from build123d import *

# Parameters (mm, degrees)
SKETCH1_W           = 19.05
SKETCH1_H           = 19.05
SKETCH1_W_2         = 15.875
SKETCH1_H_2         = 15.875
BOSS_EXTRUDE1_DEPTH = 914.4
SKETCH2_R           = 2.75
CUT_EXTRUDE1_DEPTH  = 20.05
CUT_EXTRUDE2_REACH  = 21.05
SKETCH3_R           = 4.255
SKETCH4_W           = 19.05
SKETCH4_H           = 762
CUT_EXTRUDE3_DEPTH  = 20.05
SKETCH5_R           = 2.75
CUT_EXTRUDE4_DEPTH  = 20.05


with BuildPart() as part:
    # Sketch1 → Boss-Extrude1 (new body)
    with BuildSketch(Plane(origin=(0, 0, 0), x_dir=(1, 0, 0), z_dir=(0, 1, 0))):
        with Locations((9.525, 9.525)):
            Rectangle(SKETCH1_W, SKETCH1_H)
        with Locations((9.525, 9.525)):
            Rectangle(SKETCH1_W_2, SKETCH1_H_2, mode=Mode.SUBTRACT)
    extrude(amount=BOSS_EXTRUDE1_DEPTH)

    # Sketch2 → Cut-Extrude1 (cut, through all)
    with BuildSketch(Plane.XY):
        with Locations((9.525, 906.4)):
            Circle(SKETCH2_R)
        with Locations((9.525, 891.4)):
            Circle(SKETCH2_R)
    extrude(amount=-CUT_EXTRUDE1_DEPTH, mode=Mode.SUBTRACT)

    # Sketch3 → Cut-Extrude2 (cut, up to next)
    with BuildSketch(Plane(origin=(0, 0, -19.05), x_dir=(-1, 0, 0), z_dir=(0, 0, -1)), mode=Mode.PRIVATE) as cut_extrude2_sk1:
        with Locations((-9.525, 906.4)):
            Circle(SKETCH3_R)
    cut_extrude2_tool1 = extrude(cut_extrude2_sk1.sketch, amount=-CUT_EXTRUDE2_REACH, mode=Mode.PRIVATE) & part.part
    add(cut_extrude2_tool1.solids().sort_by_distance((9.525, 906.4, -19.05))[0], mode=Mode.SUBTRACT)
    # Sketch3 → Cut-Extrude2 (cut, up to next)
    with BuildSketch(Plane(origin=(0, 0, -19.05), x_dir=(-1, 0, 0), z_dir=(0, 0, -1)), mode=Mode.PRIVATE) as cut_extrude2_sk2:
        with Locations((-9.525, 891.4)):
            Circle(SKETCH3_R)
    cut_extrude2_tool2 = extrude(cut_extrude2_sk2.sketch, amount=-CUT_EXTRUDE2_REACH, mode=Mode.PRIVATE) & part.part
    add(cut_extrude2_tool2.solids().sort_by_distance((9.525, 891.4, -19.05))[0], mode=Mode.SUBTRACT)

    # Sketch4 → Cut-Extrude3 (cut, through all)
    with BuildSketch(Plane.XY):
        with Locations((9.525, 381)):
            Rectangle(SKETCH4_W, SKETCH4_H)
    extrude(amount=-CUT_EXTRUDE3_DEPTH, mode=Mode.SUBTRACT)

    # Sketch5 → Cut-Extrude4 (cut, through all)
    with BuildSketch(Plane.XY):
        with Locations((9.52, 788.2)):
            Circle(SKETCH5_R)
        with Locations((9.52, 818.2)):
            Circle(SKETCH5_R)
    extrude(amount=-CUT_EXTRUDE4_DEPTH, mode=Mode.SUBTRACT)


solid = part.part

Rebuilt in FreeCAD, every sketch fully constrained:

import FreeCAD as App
import Part
import Sketcher

V = App.Vector
Q = App.Units.Quantity

doc = App.newDocument("Part")
body = doc.addObject("PartDesign::Body", "Body")

# Sketch on XZ plane
sketch1 = doc.addObject("Sketcher::SketchObject", "Sketch")
body.addObject(sketch1)
sketch1.AttachmentSupport = (doc.XZ_Plane, [""])
sketch1.MapMode = "FlatFace"
sketch1.addGeometry([
    Part.LineSegment(V(0, -19.05, 0), V(0, 0, 0)),  # 0
    Part.LineSegment(V(0, 0, 0), V(19.05, 0, 0)),  # 1
    Part.LineSegment(V(19.05, 0, 0), V(19.05, -19.05, 0)),  # 2
    Part.LineSegment(V(19.05, -19.05, 0), V(0, -19.05, 0)),  # 3
    Part.LineSegment(V(17.4625, -1.5875, 0), V(1.5875, -1.5875, 0)),  # 4
    Part.LineSegment(V(1.5875, -1.5875, 0), V(1.5875, -17.4625, 0)),  # 5
    Part.LineSegment(V(1.5875, -17.4625, 0), V(17.4625, -17.4625, 0)),  # 6
    Part.LineSegment(V(17.4625, -17.4625, 0), V(17.4625, -1.5875, 0)),  # 7
], False)
sketch1.addConstraint([
    Sketcher.Constraint("Coincident", 0, 2, 1, 1),
    Sketcher.Constraint("Coincident", 1, 2, 2, 1),
    Sketcher.Constraint("Coincident", 2, 2, 3, 1),
    Sketcher.Constraint("Coincident", 3, 2, 0, 1),
    Sketcher.Constraint("Coincident", 4, 2, 5, 1),
    Sketcher.Constraint("Coincident", 5, 2, 6, 1),
    Sketcher.Constraint("Coincident", 6, 2, 7, 1),
    Sketcher.Constraint("Coincident", 7, 2, 4, 1),
    Sketcher.Constraint("Vertical", 0),
    Sketcher.Constraint("Horizontal", 1),
    Sketcher.Constraint("Vertical", 2),
    Sketcher.Constraint("Horizontal", 3),
    Sketcher.Constraint("Horizontal", 4),
    Sketcher.Constraint("Vertical", 5),
    Sketcher.Constraint("Horizontal", 6),
    Sketcher.Constraint("Vertical", 7),
    Sketcher.Constraint("Coincident", 0, 2, -1, 1),
    Sketcher.Constraint("Equal", 3, 0),
    Sketcher.Constraint("Equal", 6, 5),
    Sketcher.Constraint("DistanceX", 1, 1, 1, 2, Q("0.75 in")),
    Sketcher.Constraint("DistanceX", 4, 2, 4, 1, Q("0.625 in")),
    Sketcher.Constraint("DistanceX", -1, 1, 4, 2, Q("0.0625 in")),
    Sketcher.Constraint("DistanceY", 4, 2, -1, 1, Q("0.0625 in")),
])
pad1 = doc.addObject("PartDesign::Pad", "Pad")
body.addObject(pad1)
pad1.Profile = sketch1
pad1.Length = Q("36 in")
pad1.Reversed = True

# Sketch on XY plane
sketch2 = doc.addObject("Sketcher::SketchObject", "Sketch001")
body.addObject(sketch2)
sketch2.AttachmentSupport = (doc.XY_Plane, [""])
sketch2.MapMode = "FlatFace"
sketch2.addGeometry([
    Part.Circle(V(9.525, 906.4, 0), V(0, 0, 1), 2.75),
    Part.Circle(V(9.525, 891.4, 0), V(0, 0, 1), 2.75),
], False)
sketch2.addConstraint([
    Sketcher.Constraint("Equal", 0, 1),
    Sketcher.Constraint("Vertical", 0, 3, 1, 3),
    Sketcher.Constraint("Diameter", 0, Q("5.5 mm")),
    Sketcher.Constraint("DistanceX", -1, 1, 0, 3, Q("0.375 in")),
    Sketcher.Constraint("DistanceY", -1, 1, 0, 3, Q("906.4 mm")),
    Sketcher.Constraint("DistanceY", -1, 1, 1, 3, Q("891.4 mm")),
])
pocket1 = doc.addObject("PartDesign::Pocket", "Pocket")
body.addObject(pocket1)
pocket1.Profile = sketch2
pocket1.Type = "ThroughAll"

# Sketch on XY plane
sketch3 = doc.addObject("Sketcher::SketchObject", "Sketch002")
body.addObject(sketch3)
sketch3.AttachmentSupport = (doc.XY_Plane, [""])
sketch3.MapMode = "FlatFace"
sketch3.AttachmentOffset = App.Placement(V(0, 0, -0.75 * 25.4), App.Rotation())
sketch3.addGeometry(Part.Circle(V(9.525, 906.4, 0), V(0, 0, 1), 4.255), False)
sketch3.addConstraint([
    Sketcher.Constraint("Diameter", 0, Q("8.51 mm")),
    Sketcher.Constraint("DistanceX", -1, 1, 0, 3, Q("0.375 in")),
    Sketcher.Constraint("DistanceY", -1, 1, 0, 3, Q("906.4 mm")),
])
pocket2 = doc.addObject("PartDesign::Pocket", "Pocket001")
body.addObject(pocket2)
pocket2.Profile = sketch3
pocket2.Length = Q("0.0625 in")
pocket2.Reversed = True

# Sketch on XY plane
sketch4 = doc.addObject("Sketcher::SketchObject", "Sketch003")
body.addObject(sketch4)
sketch4.AttachmentSupport = (doc.XY_Plane, [""])
sketch4.MapMode = "FlatFace"
sketch4.AttachmentOffset = App.Placement(V(0, 0, -0.75 * 25.4), App.Rotation())
sketch4.addGeometry(Part.Circle(V(9.525, 891.4, 0), V(0, 0, 1), 4.255), False)
sketch4.addConstraint([
    Sketcher.Constraint("Diameter", 0, Q("8.51 mm")),
    Sketcher.Constraint("DistanceX", -1, 1, 0, 3, Q("0.375 in")),
    Sketcher.Constraint("DistanceY", -1, 1, 0, 3, Q("891.4 mm")),
])
pocket3 = doc.addObject("PartDesign::Pocket", "Pocket002")
body.addObject(pocket3)
pocket3.Profile = sketch4
pocket3.Length = Q("0.0625 in")
pocket3.Reversed = True

# Sketch on XY plane
sketch5 = doc.addObject("Sketcher::SketchObject", "Sketch004")
body.addObject(sketch5)
sketch5.AttachmentSupport = (doc.XY_Plane, [""])
sketch5.MapMode = "FlatFace"
sketch5.addGeometry([
    Part.LineSegment(V(0, 762, 0), V(0, 0, 0)),
    Part.LineSegment(V(0, 0, 0), V(19.05, 0, 0)),
    Part.LineSegment(V(19.05, 0, 0), V(19.05, 762, 0)),
    Part.LineSegment(V(19.05, 762, 0), V(0, 762, 0)),
], False)
sketch5.addConstraint([
    Sketcher.Constraint("Coincident", 0, 2, 1, 1),
    Sketcher.Constraint("Coincident", 1, 2, 2, 1),
    Sketcher.Constraint("Coincident", 2, 2, 3, 1),
    Sketcher.Constraint("Coincident", 3, 2, 0, 1),
    Sketcher.Constraint("Vertical", 0),
    Sketcher.Constraint("Horizontal", 1),
    Sketcher.Constraint("Vertical", 2),
    Sketcher.Constraint("Horizontal", 3),
    Sketcher.Constraint("Coincident", 0, 2, -1, 1),
    Sketcher.Constraint("DistanceY", 0, 2, 0, 1, Q("30 in")),
    Sketcher.Constraint("DistanceX", 1, 1, 1, 2, Q("0.75 in")),
])
pocket4 = doc.addObject("PartDesign::Pocket", "Pocket003")
body.addObject(pocket4)
pocket4.Profile = sketch5
pocket4.Type = "ThroughAll"

# Sketch on XY plane
sketch6 = doc.addObject("Sketcher::SketchObject", "Sketch005")
body.addObject(sketch6)
sketch6.AttachmentSupport = (doc.XY_Plane, [""])
sketch6.MapMode = "FlatFace"
sketch6.addGeometry([
    Part.Circle(V(9.52, 788.2, 0), V(0, 0, 1), 2.75),
    Part.Circle(V(9.52, 818.2, 0), V(0, 0, 1), 2.75),
], False)
sketch6.addConstraint([
    Sketcher.Constraint("Equal", 0, 1),
    Sketcher.Constraint("Vertical", 0, 3, 1, 3),
    Sketcher.Constraint("Diameter", 0, Q("5.5 mm")),
    Sketcher.Constraint("DistanceX", -1, 1, 0, 3, Q("9.52 mm")),
    Sketcher.Constraint("DistanceY", -1, 1, 0, 3, Q("788.2 mm")),
    Sketcher.Constraint("DistanceY", -1, 1, 1, 3, Q("818.2 mm")),
])
pocket5 = doc.addObject("PartDesign::Pocket", "Pocket004")
body.addObject(pocket5)
pocket5.Profile = sketch6
pocket5.Type = "ThroughAll"

doc.recompute()
